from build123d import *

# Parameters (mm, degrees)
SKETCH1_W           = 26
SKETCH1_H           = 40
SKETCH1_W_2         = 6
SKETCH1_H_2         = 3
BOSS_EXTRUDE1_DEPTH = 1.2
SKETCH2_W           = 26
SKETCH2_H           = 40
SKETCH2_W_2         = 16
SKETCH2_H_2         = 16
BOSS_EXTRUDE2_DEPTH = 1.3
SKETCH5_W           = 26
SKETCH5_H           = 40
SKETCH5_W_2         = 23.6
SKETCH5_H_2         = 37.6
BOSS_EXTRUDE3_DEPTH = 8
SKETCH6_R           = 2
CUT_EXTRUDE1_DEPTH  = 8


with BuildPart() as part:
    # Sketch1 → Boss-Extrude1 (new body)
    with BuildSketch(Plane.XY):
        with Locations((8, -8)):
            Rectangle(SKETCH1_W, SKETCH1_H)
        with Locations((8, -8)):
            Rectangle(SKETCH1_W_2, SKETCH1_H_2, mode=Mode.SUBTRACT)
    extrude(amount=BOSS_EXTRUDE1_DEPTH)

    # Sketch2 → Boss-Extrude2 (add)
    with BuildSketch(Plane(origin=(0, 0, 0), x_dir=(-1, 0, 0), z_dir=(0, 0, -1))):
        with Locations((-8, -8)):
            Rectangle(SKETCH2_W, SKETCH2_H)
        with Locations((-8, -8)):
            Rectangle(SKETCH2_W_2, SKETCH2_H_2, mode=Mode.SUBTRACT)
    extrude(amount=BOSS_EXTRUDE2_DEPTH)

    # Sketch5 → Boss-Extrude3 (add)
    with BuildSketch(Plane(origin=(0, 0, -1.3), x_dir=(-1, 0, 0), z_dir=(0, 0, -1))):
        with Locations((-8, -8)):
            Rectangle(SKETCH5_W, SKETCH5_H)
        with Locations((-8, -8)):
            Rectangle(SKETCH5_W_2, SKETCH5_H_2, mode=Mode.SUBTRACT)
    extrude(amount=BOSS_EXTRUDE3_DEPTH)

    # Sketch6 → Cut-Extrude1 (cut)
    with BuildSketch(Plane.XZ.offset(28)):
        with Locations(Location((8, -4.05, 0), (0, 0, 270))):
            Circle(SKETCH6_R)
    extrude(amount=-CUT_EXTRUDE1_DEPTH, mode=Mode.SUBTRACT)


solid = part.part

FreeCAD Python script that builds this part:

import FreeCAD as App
import Part
import Sketcher

V = App.Vector


def add_polygon(sketch, points):
    """Adds a closed chain of lines whose ends are joined by coincident constraints."""
    first, n = sketch.GeometryCount, len(points)
    for a, b in zip(points, points[1:] + points[:1]):
        sketch.addGeometry(Part.LineSegment(App.Vector(*a, 0), App.Vector(*b, 0)), False)
    for i in range(n):
        sketch.addConstraint(Sketcher.Constraint("Coincident", first + i, 2, first + (i + 1) % n, 1))

doc = App.newDocument("Part")
body = doc.addObject("PartDesign::Body", "Body")

sketch1 = body.newObject("Sketcher::SketchObject", "Sketch")
sketch1.AttachmentSupport = (doc.getObject("XY_Plane"), [""])
sketch1.MapMode = "FlatFace"
add_polygon(sketch1, [(-5, 12), (-5, -28), (21, -28), (21, 12)])
add_polygon(sketch1, [(11, -9.5), (5, -9.5), (5, -6.5), (11, -6.5)])
sketch1.addConstraint([
    Sketcher.Constraint("Vertical", 0),
    Sketcher.Constraint("Horizontal", 1),
    Sketcher.Constraint("Vertical", 2),
    Sketcher.Constraint("Horizontal", 3),
    Sketcher.Constraint("Horizontal", 4),
    Sketcher.Constraint("Vertical", 5),
    Sketcher.Constraint("Horizontal", 6),
    Sketcher.Constraint("Vertical", 7),
    Sketcher.Constraint("DistanceX", 1, 1, 1, 2, 26.0),
    Sketcher.Constraint("DistanceX", 4, 2, 4, 1, 6.0),
    Sketcher.Constraint("DistanceY", 0, 2, 0, 1, 40.0),
    Sketcher.Constraint("DistanceY", 5, 1, 5, 2, 3.0),
    Sketcher.Constraint("DistanceX", 0, 2, -1, 1, 5.0),
    Sketcher.Constraint("DistanceY", 0, 2, -1, 1, 28.0),
    Sketcher.Constraint("DistanceX", -1, 1, 4, 2, 5.0),
    Sketcher.Constraint("DistanceY", 4, 2, -1, 1, 9.5),
])
pad1 = body.newObject("PartDesign::Pad", "Pad")
pad1.Profile = sketch1
pad1.Length = 1.2

sketch2 = body.newObject("Sketcher::SketchObject", "Sketch001")
sketch2.AttachmentSupport = (doc.getObject("XY_Plane"), [""])
sketch2.MapMode = "FlatFace"
add_polygon(sketch2, [(21, 12), (21, -28), (-5, -28), (-5, 12)])
add_polygon(sketch2, [(0, -16), (16, -16), (16, 0), (0, 0)])
sketch2.addConstraint([
    Sketcher.Constraint("Vertical", 0),
    Sketcher.Constraint("Horizontal", 1),
    Sketcher.Constraint("Vertical", 2),
    Sketcher.Constraint("Horizontal", 3),
    Sketcher.Constraint("Horizontal", 4),
    Sketcher.Constraint("Vertical", 5),
    Sketcher.Constraint("Horizontal", 6),
    Sketcher.Constraint("Vertical", 7),
    Sketcher.Constraint("Coincident", 6, 2, -1, 1),
    Sketcher.Constraint("Equal", 6, 5),
    Sketcher.Constraint("DistanceX", 1, 2, 1, 1, 26.0),
    Sketcher.Constraint("DistanceX", 4, 1, 4, 2, 16.0),
    Sketcher.Constraint("DistanceY", 0, 2, 0, 1, 40.0),
    Sketcher.Constraint("DistanceX", -1, 1, 0, 2, 21.0),
    Sketcher.Constraint("DistanceY", 0, 2, -1, 1, 28.0),
])
pad2 = body.newObject("PartDesign::Pad", "Pad001")
pad2.Profile = sketch2
pad2.Length = 1.3
pad2.Reversed = True

sketch3 = body.newObject("Sketcher::SketchObject", "Sketch002")
sketch3.AttachmentSupport = (doc.getObject("XY_Plane"), [""])
sketch3.MapMode = "FlatFace"
sketch3.AttachmentOffset = App.Placement(V(0, 0, -1.3), App.Rotation())
add_polygon(sketch3, [(21, 12), (21, -28), (-5, -28), (-5, 12)])
add_polygon(sketch3, [(-4, -27), (20, -27), (20, 11), (-4, 11)])
sketch3.addConstraint([
    Sketcher.Constraint("Vertical", 0),
    Sketcher.Constraint("Horizontal", 1),
    Sketcher.Constraint("Vertical", 2),
    Sketcher.Constraint("Horizontal", 3),
    Sketcher.Constraint("Horizontal", 4),
    Sketcher.Constraint("Vertical", 5),
    Sketcher.Constraint("Horizontal", 6),
    Sketcher.Constraint("Vertical", 7),
    Sketcher.Constraint("DistanceX", 1, 2, 1, 1, 26.0),
    Sketcher.Constraint("DistanceY", 0, 2, 0, 1, 40.0),
    Sketcher.Constraint("DistanceX", 4, 1, 4, 2, 23.6),
    Sketcher.Constraint("DistanceY", 5, 1, 5, 2, 37.6),
    Sketcher.Constraint("DistanceX", -1, 1, 0, 2, 21.0),
    Sketcher.Constraint("DistanceY", 0, 2, -1, 1, 28.0),
    Sketcher.Constraint("DistanceX", -1, 1, 4, 2, 19.8),
    Sketcher.Constraint("DistanceY", 4, 2, -1, 1, 26.8),
])
pad3 = body.newObject("PartDesign::Pad", "Pad002")
pad3.Profile = sketch3
pad3.Length = 8
pad3.Reversed = True

sketch4 = body.newObject("Sketcher::SketchObject", "Sketch003")
sketch4.AttachmentSupport = (doc.getObject("XZ_Plane"), [""])
sketch4.MapMode = "FlatFace"
sketch4.AttachmentOffset = App.Placement(V(0, 0, 28), App.Rotation())
sketch4.addGeometry(Part.Circle(V(8, -4, 0), V(0, 0, 1), 2), False)
sketch4.addConstraint([
    Sketcher.Constraint("Diameter", 0, 4.0),
    Sketcher.Constraint("DistanceX", -1, 1, 0, 3, 8.0),
    Sketcher.Constraint("DistanceY", 0, 3, -1, 1, 4.05),
])
pocket1 = body.newObject("PartDesign::Pocket", "Pocket")
pocket1.Profile = sketch4
pocket1.Length = 8

doc.recompute()
